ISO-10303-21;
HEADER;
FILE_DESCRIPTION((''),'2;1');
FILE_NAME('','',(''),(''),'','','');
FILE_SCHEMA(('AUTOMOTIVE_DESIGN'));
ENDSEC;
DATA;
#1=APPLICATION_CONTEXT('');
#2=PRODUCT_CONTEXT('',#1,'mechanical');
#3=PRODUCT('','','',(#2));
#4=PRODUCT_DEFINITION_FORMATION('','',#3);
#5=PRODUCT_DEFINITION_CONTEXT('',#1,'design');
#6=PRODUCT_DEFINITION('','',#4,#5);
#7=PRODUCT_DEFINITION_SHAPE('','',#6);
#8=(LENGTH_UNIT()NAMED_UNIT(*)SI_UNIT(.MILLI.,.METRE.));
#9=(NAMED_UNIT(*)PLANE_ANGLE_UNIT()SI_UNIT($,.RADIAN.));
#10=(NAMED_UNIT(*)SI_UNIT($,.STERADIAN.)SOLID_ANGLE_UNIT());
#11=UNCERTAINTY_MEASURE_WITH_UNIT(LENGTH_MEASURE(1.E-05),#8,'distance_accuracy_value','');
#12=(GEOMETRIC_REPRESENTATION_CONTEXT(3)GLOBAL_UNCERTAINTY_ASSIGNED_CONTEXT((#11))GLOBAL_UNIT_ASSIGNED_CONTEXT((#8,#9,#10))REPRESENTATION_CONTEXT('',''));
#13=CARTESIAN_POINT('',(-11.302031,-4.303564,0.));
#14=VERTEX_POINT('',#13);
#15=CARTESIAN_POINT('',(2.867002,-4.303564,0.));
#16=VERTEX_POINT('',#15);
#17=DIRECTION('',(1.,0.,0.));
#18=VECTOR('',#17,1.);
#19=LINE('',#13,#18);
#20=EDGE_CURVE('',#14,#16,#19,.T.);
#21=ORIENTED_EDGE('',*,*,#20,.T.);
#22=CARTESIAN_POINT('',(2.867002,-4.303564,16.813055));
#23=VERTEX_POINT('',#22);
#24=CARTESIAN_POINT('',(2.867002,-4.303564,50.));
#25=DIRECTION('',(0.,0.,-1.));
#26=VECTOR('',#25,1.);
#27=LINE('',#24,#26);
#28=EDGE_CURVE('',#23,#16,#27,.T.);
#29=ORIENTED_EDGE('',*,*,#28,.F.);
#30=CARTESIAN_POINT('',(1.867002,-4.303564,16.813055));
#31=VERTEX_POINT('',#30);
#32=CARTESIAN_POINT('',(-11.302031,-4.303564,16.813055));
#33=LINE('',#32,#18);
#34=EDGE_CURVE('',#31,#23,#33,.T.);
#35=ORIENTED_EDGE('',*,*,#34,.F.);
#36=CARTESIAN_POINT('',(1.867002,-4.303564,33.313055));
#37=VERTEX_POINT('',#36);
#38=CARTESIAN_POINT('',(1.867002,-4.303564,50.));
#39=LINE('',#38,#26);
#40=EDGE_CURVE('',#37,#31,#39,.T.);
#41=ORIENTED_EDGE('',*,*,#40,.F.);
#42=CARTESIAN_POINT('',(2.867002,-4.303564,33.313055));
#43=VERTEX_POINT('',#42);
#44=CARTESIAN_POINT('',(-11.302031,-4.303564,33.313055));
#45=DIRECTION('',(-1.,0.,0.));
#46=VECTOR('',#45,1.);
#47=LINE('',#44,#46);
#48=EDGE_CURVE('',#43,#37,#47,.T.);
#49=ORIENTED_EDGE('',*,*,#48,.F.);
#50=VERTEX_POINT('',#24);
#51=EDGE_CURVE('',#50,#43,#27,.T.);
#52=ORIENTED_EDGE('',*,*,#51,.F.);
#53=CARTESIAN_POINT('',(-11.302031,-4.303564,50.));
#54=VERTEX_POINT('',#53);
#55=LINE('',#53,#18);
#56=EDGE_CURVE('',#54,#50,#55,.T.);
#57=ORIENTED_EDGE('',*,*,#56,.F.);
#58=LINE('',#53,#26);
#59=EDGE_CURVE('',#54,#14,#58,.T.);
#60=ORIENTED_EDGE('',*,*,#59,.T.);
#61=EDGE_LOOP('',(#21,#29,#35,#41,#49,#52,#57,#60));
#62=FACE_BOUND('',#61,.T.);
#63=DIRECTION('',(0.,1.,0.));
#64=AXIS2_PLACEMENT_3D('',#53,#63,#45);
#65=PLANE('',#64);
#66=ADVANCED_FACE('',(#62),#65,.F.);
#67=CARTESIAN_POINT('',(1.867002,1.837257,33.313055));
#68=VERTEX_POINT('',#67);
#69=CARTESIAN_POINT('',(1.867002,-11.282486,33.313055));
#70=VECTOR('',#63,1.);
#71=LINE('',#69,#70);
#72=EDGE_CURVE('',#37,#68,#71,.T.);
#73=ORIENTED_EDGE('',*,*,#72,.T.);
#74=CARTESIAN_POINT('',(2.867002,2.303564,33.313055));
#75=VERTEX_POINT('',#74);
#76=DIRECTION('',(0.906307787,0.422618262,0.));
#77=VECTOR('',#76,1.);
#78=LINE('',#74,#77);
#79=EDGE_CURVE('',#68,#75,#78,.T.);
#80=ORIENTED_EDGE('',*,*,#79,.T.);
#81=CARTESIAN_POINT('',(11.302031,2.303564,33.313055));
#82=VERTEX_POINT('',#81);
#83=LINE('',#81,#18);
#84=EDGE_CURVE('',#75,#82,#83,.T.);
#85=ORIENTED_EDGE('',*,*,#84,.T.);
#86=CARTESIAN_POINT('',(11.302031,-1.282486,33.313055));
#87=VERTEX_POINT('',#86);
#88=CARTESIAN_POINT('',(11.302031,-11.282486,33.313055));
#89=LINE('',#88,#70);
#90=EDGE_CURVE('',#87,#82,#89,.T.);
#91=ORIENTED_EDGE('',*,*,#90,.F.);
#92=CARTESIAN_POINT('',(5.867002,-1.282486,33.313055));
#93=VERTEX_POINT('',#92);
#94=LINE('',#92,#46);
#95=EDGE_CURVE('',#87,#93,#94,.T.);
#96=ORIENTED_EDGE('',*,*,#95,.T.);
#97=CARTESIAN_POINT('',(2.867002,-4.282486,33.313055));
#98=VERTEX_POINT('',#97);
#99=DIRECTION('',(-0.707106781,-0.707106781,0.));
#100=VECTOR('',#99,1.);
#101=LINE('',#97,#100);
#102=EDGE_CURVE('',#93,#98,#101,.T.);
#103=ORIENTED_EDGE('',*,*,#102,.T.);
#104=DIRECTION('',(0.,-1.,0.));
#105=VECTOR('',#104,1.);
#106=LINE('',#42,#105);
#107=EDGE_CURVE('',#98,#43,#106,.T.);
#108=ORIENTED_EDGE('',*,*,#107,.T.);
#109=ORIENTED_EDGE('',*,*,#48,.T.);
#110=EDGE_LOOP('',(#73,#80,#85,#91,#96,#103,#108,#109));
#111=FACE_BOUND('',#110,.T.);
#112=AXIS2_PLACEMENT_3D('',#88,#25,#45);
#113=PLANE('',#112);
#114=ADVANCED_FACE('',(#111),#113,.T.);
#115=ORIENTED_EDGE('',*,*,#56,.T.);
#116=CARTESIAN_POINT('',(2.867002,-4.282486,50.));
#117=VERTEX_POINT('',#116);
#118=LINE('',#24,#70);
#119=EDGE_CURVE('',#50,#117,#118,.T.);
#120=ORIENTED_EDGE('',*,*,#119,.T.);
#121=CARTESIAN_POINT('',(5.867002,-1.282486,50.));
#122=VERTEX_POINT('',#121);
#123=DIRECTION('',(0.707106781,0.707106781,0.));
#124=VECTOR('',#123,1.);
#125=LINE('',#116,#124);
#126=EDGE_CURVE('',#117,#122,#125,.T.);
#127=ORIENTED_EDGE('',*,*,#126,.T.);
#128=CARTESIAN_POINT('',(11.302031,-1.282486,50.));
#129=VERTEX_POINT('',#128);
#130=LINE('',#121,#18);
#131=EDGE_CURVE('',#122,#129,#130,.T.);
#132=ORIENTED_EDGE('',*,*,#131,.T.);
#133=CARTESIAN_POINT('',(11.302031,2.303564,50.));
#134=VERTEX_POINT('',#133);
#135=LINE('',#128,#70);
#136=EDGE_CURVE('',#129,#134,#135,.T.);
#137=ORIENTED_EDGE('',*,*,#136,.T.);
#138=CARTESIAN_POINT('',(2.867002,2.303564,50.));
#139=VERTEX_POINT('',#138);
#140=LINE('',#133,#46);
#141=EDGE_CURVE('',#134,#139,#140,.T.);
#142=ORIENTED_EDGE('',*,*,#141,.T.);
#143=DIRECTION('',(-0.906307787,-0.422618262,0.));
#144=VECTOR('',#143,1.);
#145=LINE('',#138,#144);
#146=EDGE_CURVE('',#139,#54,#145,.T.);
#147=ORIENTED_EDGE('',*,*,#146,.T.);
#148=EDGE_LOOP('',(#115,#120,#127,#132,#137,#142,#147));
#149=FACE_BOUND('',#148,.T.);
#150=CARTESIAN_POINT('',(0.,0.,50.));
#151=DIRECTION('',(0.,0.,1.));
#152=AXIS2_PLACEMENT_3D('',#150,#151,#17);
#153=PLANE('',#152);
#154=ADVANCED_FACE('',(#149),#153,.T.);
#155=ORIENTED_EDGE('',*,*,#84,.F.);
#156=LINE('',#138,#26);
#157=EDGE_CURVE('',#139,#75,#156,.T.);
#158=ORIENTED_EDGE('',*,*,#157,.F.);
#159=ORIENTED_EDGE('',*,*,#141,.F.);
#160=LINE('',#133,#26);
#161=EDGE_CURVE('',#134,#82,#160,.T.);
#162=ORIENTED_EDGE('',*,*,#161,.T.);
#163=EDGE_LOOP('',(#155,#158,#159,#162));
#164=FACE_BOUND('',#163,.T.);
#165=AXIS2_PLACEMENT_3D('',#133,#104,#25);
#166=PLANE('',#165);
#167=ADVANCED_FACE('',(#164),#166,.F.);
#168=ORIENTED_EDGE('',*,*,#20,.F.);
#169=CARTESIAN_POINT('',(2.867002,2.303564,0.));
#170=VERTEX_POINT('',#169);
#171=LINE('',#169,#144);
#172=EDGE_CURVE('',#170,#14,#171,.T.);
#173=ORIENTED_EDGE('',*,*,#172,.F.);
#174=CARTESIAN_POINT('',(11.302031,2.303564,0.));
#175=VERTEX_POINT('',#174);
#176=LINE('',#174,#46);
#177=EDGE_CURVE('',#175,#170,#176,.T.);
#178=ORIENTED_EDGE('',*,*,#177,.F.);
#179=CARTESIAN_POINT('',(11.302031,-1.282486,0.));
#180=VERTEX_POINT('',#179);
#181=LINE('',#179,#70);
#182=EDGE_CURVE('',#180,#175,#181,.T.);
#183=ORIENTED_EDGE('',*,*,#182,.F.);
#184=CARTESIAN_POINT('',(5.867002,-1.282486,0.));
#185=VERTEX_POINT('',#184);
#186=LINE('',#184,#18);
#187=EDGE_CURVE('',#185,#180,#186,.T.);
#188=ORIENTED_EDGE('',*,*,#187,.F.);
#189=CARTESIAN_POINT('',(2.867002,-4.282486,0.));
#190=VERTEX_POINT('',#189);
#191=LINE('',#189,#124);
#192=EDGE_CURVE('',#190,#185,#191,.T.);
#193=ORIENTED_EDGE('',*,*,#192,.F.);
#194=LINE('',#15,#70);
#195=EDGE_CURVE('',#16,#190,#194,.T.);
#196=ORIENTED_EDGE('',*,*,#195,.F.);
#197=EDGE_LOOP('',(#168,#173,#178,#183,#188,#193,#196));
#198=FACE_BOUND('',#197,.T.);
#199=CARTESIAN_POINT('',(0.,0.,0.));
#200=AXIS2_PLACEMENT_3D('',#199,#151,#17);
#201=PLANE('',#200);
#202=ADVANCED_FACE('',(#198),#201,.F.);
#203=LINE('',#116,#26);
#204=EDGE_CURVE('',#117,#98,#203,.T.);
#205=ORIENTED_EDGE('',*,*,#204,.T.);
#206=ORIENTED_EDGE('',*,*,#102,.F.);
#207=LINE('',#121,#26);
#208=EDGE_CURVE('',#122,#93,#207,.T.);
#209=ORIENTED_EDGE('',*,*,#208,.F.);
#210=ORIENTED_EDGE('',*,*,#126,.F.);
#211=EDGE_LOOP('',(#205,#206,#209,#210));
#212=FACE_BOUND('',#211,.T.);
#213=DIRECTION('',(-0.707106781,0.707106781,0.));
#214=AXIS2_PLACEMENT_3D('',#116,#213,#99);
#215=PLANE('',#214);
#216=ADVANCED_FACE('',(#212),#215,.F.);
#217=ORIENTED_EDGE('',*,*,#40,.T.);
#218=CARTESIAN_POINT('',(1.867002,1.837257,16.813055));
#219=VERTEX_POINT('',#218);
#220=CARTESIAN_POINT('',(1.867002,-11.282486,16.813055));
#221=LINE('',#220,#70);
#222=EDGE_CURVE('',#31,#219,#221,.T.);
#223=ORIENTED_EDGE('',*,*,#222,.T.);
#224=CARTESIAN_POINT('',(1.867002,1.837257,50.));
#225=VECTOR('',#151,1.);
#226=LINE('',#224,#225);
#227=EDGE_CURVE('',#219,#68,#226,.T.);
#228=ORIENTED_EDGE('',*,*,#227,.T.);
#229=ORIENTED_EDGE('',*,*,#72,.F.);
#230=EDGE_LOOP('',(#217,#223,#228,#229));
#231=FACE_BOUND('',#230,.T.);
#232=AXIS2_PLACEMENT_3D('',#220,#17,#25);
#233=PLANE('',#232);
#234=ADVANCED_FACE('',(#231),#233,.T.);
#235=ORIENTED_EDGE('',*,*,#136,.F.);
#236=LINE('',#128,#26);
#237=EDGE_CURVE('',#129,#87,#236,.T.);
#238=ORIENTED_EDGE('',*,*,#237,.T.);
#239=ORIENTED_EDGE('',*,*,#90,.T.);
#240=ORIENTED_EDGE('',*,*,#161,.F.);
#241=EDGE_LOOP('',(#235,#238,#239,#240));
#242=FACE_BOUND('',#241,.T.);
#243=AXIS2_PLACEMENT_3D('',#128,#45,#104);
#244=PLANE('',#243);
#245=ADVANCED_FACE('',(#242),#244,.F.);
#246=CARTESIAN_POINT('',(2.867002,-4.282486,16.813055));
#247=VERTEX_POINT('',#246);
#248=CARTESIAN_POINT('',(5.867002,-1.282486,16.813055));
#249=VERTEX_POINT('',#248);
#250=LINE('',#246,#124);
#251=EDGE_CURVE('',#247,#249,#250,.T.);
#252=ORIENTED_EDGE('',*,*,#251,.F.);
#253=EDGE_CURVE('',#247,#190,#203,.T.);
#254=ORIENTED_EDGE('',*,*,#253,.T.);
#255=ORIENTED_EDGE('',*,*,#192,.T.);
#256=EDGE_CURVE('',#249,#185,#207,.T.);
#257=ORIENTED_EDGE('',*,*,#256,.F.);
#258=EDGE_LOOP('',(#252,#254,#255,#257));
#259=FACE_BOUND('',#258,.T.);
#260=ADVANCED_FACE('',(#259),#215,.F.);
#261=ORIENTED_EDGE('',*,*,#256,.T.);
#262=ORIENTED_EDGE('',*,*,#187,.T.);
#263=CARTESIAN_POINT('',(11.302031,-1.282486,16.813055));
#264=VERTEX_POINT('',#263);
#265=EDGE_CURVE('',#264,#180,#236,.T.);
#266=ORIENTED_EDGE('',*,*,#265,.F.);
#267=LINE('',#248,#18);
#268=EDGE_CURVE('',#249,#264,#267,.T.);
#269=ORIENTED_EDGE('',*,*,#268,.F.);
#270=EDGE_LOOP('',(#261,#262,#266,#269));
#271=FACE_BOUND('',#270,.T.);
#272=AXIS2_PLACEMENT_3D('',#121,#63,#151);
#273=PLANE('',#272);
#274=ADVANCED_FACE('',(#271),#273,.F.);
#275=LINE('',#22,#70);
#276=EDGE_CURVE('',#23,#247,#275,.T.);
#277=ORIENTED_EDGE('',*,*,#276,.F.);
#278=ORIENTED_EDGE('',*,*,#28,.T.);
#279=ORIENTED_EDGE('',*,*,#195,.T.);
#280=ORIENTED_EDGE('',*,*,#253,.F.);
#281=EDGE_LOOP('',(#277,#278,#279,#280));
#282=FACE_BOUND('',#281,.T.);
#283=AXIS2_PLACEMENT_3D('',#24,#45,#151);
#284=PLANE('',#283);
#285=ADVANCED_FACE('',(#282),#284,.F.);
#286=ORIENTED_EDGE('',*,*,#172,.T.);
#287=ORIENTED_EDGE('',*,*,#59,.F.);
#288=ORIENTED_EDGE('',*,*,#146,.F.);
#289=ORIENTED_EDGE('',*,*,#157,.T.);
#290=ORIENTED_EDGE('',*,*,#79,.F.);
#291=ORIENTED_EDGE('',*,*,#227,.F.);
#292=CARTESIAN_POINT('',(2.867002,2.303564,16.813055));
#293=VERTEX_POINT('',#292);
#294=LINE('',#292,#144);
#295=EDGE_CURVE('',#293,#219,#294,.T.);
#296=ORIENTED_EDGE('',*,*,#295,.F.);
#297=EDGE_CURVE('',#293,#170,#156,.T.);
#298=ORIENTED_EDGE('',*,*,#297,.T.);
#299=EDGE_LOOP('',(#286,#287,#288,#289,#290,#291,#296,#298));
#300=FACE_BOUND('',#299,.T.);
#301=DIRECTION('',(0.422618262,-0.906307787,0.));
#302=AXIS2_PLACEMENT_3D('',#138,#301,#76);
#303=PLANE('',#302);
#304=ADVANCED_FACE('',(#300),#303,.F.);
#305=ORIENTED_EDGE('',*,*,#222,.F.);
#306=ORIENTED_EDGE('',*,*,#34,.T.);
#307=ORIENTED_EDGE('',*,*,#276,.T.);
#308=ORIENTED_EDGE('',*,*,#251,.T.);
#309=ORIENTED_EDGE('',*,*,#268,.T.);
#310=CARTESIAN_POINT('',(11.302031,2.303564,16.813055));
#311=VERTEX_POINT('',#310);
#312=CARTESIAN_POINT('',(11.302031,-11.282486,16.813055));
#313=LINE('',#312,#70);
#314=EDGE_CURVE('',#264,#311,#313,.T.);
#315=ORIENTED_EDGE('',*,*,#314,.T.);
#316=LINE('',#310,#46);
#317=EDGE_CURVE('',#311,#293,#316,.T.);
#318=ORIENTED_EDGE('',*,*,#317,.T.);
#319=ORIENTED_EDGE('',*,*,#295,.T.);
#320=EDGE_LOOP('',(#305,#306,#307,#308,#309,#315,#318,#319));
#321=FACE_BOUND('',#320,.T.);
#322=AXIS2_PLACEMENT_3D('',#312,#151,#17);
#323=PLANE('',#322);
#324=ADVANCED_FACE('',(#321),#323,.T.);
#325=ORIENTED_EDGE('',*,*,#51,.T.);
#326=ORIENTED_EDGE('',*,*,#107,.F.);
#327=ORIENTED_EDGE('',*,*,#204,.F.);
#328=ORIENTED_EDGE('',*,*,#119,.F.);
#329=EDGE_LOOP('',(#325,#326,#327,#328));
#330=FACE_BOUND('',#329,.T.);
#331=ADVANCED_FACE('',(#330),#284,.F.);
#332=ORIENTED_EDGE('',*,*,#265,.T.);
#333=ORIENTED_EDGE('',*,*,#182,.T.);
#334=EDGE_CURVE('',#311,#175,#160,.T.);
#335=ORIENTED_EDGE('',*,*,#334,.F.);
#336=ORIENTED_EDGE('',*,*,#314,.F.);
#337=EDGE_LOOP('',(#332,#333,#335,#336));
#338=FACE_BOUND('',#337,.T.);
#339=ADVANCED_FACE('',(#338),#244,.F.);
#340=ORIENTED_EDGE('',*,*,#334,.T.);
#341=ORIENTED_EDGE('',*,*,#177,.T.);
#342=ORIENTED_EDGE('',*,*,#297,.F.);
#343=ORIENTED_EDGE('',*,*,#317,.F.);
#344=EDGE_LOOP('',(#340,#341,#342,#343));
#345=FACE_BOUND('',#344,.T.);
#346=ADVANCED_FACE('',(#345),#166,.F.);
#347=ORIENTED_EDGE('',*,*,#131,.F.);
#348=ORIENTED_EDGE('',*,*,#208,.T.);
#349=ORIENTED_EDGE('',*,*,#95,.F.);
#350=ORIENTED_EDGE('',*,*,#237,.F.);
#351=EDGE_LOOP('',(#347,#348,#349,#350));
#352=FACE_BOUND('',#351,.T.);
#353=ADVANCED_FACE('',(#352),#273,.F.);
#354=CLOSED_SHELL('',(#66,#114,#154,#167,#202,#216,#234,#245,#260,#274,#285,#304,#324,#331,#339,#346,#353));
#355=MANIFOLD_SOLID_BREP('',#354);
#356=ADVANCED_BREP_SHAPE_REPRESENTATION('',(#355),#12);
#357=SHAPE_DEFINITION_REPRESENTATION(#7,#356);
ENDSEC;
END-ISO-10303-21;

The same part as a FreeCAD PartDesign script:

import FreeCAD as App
import Part
import Sketcher

V = App.Vector
Q = App.Units.Quantity

doc = App.newDocument("Part")
params = doc.addObject("Spreadsheet::Sheet", "Params")
for row, (alias, value) in enumerate([
    ("pad1_length", "50 mm"),
    ("sketch2_height", "16.5 mm"),
], start=1):
    params.set(f"A{row}", alias)
    params.set(f"B{row}", "=" + value)
    params.setAlias(f"B{row}", alias)

body = doc.addObject("PartDesign::Body", "Body")

# Sketch on XY plane
sketch1 = body.newObject("Sketcher::SketchObject", "Sketch")
sketch1.AttachmentSupport = (doc.getObject("XY_Plane"), [""])
sketch1.MapMode = "FlatFace"
sketch1.addGeometry([
    Part.LineSegment(V(2.867002, -4.303564, 0), V(2.867002, -4.282486, 0)),  # 0
    Part.LineSegment(V(2.867002, -4.282486, 0), V(5.867002, -1.282486, 0)),  # 1
    Part.LineSegment(V(5.867002, -1.282486, 0), V(11.302031, -1.282486, 0)),  # 2
    Part.LineSegment(V(11.302031, -1.282486, 0), V(11.302031, 2.303564, 0)),  # 3
    Part.LineSegment(V(11.302031, 2.303564, 0), V(2.867002, 2.303564, 0)),  # 4
    Part.LineSegment(V(2.867002, 2.303564, 0), V(-11.302031, -4.303564, 0)),  # 5
    Part.LineSegment(V(-11.302031, -4.303564, 0), V(2.867002, -4.303564, 0)),  # 6
], False)
sketch1.addConstraint([
    Sketcher.Constraint("Coincident", 0, 2, 1, 1),
    Sketcher.Constraint("Coincident", 1, 2, 2, 1),
    Sketcher.Constraint("Coincident", 2, 2, 3, 1),
    Sketcher.Constraint("Coincident", 3, 2, 4, 1),
    Sketcher.Constraint("Coincident", 4, 2, 5, 1),
    Sketcher.Constraint("Coincident", 5, 2, 6, 1),
    Sketcher.Constraint("Coincident", 6, 2, 0, 1),
    Sketcher.Constraint("Vertical", 0),
    Sketcher.Constraint("Horizontal", 2),
    Sketcher.Constraint("Vertical", 3),
    Sketcher.Constraint("Horizontal", 4),
    Sketcher.Constraint("Horizontal", 6),
    Sketcher.Constraint("Vertical", 0, 2, 4, 2),
    Sketcher.Constraint("Angle", 1, Q("45 deg")),
    Sketcher.Constraint("Angle", 5, Q("-155 deg")),
    Sketcher.Constraint("DistanceX", 0, 2, 1, 2, 3.0),
    Sketcher.Constraint("Distance", 5, 15.633798),
    Sketcher.Constraint("DistanceX", 2, 1, 2, 2, 5.435029),
    Sketcher.Constraint("DistanceY", 0, 1, 0, 2, 0.021079),
    Sketcher.Constraint("DistanceX", -1, 1, 2, 2, 11.302031),
    Sketcher.Constraint("DistanceY", 0, 2, -1, 1, 4.282486),
])
pad1 = body.newObject("PartDesign::Pad", "Pad")
pad1.Profile = sketch1
pad1.setExpression("Length", "Params.pad1_length")

# Sketch on XZ plane
sketch2 = body.newObject("Sketcher::SketchObject", "Sketch001")
sketch2.AttachmentSupport = (doc.getObject("XZ_Plane"), [""])
sketch2.MapMode = "FlatFace"
sketch2.AttachmentOffset = App.Placement(V(0, 0, 1.282486), App.Rotation())
sketch2.addGeometry([
    Part.LineSegment(V(1.867002, 33.313055, 0), V(1.867002, 16.813055, 0)),
    Part.LineSegment(V(1.867002, 16.813055, 0), V(11.302031, 16.813055, 0)),
    Part.LineSegment(V(11.302031, 16.813055, 0), V(11.302031, 33.313055, 0)),
    Part.LineSegment(V(11.302031, 33.313055, 0), V(1.867002, 33.313055, 0)),
], False)
sketch2.addConstraint([
    Sketcher.Constraint("Coincident", 0, 2, 1, 1),
    Sketcher.Constraint("Coincident", 1, 2, 2, 1),
    Sketcher.Constraint("Coincident", 2, 2, 3, 1),
    Sketcher.Constraint("Coincident", 3, 2, 0, 1),
    Sketcher.Constraint("Vertical", 0),
    Sketcher.Constraint("Horizontal", 1),
    Sketcher.Constraint("Vertical", 2),
    Sketcher.Constraint("Horizontal", 3),
    Sketcher.Constraint("DistanceY", 0, 2, 0, 1, 16.5),
    Sketcher.Constraint("DistanceX", 1, 1, 1, 2, 9.435029),
    Sketcher.Constraint("DistanceX", -1, 1, 1, 2, 11.302031),
    Sketcher.Constraint("DistanceY", -1, 1, 0, 2, 16.813055),
])
sketch2.setExpression("Constraints[8]", "Params.sketch2_height")
pocket1 = body.newObject("PartDesign::Pocket", "Pocket")
pocket1.Profile = sketch2
pocket1.Type = "ThroughAll"
pocket1.Midplane = True

doc.recompute()
